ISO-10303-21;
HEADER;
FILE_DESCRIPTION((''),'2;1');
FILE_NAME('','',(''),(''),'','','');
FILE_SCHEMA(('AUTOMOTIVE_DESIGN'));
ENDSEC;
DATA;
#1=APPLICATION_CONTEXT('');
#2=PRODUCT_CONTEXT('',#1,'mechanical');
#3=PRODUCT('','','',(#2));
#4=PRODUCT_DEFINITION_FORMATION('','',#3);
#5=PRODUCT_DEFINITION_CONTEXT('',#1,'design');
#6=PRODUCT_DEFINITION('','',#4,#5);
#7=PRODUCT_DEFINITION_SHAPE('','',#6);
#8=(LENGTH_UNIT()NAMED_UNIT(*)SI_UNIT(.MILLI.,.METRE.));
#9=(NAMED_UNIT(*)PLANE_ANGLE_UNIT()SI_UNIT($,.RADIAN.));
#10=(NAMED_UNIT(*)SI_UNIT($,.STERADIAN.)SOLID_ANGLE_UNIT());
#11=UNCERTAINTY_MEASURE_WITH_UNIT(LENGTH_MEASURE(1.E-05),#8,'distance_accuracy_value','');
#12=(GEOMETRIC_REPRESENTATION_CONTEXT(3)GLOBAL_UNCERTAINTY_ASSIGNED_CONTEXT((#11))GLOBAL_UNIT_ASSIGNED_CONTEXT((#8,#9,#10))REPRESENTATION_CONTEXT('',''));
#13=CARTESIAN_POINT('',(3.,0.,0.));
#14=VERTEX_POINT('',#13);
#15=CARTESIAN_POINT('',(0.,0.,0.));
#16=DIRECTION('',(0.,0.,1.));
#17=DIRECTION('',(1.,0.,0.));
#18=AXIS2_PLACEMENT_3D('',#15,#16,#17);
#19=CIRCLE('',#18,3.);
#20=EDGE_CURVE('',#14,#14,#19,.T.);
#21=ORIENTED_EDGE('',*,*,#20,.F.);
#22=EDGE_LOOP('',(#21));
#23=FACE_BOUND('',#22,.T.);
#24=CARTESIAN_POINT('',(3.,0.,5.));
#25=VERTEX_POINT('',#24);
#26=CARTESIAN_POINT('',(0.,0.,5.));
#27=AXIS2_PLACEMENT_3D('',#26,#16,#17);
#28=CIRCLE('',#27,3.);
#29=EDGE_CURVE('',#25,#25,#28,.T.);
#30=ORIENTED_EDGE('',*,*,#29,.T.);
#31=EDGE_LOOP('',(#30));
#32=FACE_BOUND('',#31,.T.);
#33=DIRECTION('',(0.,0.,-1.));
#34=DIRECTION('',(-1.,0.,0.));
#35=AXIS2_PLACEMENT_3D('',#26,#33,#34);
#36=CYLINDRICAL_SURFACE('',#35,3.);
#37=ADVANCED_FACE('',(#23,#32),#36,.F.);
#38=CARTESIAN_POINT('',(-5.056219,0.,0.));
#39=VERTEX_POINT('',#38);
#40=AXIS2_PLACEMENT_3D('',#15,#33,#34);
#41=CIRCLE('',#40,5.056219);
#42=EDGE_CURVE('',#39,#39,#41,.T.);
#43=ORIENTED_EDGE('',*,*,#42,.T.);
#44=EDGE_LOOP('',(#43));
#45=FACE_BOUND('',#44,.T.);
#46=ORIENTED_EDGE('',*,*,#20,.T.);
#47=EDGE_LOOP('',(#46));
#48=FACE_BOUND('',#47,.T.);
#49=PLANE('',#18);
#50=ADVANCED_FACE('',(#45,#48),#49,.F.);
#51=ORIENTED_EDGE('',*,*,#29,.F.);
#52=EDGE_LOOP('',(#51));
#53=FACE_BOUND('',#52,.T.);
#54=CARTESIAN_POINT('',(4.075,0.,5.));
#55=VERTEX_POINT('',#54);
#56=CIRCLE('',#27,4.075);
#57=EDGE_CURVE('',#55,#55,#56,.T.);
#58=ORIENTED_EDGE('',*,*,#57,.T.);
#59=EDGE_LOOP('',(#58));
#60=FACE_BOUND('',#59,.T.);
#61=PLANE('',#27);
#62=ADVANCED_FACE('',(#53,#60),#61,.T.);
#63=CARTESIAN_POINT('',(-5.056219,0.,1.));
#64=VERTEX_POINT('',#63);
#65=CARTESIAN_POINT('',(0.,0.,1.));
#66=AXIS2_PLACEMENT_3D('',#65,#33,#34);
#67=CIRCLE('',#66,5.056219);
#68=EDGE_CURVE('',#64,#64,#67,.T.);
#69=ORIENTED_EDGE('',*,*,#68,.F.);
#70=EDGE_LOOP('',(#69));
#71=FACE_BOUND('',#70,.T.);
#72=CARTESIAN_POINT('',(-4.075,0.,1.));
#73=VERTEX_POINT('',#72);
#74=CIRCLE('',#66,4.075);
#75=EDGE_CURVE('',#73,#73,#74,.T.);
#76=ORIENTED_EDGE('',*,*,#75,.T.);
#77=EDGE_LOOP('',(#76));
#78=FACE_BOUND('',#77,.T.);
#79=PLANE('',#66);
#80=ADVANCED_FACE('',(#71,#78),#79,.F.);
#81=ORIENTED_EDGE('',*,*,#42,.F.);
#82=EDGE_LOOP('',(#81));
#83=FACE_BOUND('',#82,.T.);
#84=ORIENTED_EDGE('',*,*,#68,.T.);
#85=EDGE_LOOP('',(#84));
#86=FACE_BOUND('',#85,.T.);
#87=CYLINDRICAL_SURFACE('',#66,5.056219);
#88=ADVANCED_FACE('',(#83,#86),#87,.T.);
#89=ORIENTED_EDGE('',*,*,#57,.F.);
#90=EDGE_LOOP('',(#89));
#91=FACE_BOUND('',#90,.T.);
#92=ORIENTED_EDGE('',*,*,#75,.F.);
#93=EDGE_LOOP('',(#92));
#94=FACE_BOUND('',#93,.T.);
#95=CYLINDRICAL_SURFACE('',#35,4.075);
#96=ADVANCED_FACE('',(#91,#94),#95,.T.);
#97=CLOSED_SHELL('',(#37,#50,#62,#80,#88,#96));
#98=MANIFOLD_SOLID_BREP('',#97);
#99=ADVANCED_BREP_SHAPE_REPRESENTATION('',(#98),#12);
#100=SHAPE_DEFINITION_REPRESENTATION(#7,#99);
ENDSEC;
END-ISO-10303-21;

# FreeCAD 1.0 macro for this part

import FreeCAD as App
import Part
import Sketcher

V = App.Vector
Q = App.Units.Quantity

doc = App.newDocument("Part")
body = doc.addObject("PartDesign::Body", "Body")

# Sketch on XY plane
sketch1 = body.newObject("Sketcher::SketchObject", "Sketch")
sketch1.AttachmentSupport = (doc.getObject("XY_Plane"), [""])
sketch1.MapMode = "FlatFace"
sketch1.addGeometry(Part.Circle(V(0, 0, 0), V(0, 0, 1), 4.1), False)
sketch1.addGeometry(Part.Circle(V(0, 0, 0), V(0, 0, 1), 3), False)
sketch1.addConstraint(Sketcher.Constraint("Coincident", 0, 3, -1, 1))
sketch1.addConstraint(Sketcher.Constraint("Coincident", 1, 3, -1, 1))
sketch1.addConstraint(Sketcher.Constraint("Diameter", 1, Q("6 mm")))
sketch1.addConstraint(Sketcher.Constraint("Diameter", 0, Q("8.15 mm")))
pad1 = body.newObject("PartDesign::Pad", "Pad")
pad1.Profile = sketch1
pad1.Length = 5

# Sketch on XY plane
sketch2 = body.newObject("Sketcher::SketchObject", "Sketch001")
sketch2.AttachmentSupport = (doc.getObject("XY_Plane"), [""])
sketch2.MapMode = "FlatFace"
sketch2.addGeometry(Part.Circle(V(0, 0, 0), V(0, 0, 1), 5.1), False)
sketch2.addGeometry(Part.Circle(V(0, 0, 0), V(0, 0, 1), 4.1), False)
sketch2.addConstraint(Sketcher.Constraint("Coincident", 0, 3, -1, 1))
sketch2.addConstraint(Sketcher.Constraint("Coincident", 1, 3, -1, 1))
sketch2.addConstraint(Sketcher.Constraint("Diameter", 1, Q("8.15 mm")))
sketch2.addConstraint(Sketcher.Constraint("Diameter", 0, Q("10.112438 mm")))
pad2 = body.newObject("PartDesign::Pad", "Pad001")
pad2.Profile = sketch2
pad2.Length = 1

doc.recompute()
